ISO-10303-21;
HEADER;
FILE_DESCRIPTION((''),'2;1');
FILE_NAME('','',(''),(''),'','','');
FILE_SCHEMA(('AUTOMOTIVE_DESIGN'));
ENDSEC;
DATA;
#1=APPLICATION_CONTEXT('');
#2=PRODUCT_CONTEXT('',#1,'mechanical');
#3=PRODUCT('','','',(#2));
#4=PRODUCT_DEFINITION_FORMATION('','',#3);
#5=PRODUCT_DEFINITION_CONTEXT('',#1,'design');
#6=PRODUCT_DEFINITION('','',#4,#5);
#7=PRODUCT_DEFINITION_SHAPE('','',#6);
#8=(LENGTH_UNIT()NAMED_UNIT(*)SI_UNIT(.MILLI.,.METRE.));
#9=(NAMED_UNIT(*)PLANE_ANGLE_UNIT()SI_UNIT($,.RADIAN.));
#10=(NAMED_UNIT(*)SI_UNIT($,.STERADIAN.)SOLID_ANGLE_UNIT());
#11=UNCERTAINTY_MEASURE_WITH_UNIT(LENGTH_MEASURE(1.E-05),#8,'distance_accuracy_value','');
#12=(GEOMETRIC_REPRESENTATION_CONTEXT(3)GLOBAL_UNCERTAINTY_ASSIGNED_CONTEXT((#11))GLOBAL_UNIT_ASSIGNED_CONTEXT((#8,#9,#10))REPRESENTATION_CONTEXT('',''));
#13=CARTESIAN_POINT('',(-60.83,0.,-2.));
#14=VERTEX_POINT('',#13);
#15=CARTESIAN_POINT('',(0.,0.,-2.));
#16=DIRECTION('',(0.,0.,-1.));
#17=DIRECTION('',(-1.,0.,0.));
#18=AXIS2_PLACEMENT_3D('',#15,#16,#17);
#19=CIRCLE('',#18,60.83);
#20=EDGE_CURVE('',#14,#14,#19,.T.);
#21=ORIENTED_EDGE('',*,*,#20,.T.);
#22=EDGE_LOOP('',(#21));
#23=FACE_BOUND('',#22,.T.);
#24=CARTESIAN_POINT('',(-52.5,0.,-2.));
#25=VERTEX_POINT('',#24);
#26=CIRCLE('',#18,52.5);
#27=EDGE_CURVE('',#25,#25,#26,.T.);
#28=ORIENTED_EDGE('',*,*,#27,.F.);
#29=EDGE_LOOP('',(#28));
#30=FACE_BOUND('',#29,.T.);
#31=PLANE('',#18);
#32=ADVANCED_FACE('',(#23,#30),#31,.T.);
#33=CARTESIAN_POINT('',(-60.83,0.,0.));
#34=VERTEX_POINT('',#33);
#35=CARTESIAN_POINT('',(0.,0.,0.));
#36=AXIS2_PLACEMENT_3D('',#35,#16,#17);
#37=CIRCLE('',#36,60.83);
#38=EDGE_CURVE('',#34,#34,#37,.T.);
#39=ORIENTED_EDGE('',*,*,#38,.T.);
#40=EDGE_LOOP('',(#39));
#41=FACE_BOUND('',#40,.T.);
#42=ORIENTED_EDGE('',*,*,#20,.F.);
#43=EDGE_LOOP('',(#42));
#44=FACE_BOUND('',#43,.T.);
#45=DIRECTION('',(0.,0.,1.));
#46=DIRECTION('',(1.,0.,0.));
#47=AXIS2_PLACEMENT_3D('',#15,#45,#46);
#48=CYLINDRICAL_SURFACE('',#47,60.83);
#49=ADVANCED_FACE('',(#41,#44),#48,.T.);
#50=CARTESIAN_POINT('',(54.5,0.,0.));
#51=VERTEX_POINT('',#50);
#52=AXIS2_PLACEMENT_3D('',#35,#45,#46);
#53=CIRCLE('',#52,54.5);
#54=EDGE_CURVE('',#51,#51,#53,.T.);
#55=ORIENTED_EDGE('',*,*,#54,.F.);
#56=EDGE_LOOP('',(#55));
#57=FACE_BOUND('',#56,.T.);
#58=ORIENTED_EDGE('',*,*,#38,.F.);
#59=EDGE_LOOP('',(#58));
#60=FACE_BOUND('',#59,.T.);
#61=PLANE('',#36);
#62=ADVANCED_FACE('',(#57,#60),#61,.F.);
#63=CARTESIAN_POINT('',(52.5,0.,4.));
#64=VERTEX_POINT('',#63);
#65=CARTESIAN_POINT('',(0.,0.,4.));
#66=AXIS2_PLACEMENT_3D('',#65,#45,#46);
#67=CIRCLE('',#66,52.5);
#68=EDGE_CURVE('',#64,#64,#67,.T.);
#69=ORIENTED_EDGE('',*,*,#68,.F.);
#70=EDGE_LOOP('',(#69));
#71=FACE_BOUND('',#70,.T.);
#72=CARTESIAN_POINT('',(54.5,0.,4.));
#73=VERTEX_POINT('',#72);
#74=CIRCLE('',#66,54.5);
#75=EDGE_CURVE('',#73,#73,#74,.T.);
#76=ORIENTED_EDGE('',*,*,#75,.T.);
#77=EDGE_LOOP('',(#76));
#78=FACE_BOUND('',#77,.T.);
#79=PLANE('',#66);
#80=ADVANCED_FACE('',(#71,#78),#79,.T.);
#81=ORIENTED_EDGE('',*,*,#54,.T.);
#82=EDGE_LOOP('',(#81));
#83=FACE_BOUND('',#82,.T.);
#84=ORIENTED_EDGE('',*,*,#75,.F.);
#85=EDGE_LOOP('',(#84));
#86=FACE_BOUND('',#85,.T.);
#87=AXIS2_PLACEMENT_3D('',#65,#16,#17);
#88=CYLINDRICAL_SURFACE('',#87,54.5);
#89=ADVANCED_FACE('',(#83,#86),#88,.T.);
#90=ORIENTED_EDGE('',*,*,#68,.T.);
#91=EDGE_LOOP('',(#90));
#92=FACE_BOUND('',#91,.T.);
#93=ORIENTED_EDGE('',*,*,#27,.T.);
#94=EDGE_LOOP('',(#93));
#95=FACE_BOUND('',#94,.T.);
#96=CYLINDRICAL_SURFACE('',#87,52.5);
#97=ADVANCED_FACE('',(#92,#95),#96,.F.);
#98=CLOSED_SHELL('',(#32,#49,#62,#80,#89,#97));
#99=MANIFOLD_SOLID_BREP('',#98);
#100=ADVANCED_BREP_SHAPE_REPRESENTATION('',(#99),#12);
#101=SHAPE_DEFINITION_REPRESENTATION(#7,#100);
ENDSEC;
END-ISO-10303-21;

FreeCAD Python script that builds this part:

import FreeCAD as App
import Part
import Sketcher

V = App.Vector

doc = App.newDocument("Part")
body = doc.addObject("PartDesign::Body", "Body")

# Sketch on XY plane
sketch1 = body.newObject("Sketcher::SketchObject", "Sketch")
sketch1.AttachmentSupport = (doc.getObject("XY_Plane"), [""])
sketch1.MapMode = "FlatFace"
sketch1.addGeometry(Part.Circle(V(0, 0, 0), V(0, 0, 1), 54.5), False)
sketch1.addGeometry(Part.Circle(V(0, 0, 0), V(0, 0, 1), 52.5), False)
sketch1.addConstraint(Sketcher.Constraint("Coincident", 0, 3, -1, 1))
sketch1.addConstraint(Sketcher.Constraint("Coincident", 1, 3, -1, 1))
sketch1.addConstraint(Sketcher.Constraint("Diameter", 0, 109.0))
sketch1.addConstraint(Sketcher.Constraint("Diameter", 1, 105.0))
pad1 = body.newObject("PartDesign::Pad", "Pad")
pad1.Profile = sketch1
pad1.Length = 4

# Sketch on XY plane
sketch2 = body.newObject("Sketcher::SketchObject", "Sketch001")
sketch2.AttachmentSupport = (doc.getObject("XY_Plane"), [""])
sketch2.MapMode = "FlatFace"
sketch2.AttachmentOffset = App.Placement(V(0, 0, -2), App.Rotation())
sketch2.addGeometry(Part.Circle(V(0, 0, 0), V(0, 0, 1), 60.83), False)
sketch2.addGeometry(Part.Circle(V(0, 0, 0), V(0, 0, 1), 52.5), False)
sketch2.addConstraint(Sketcher.Constraint("Coincident", 0, 3, -1, 1))
sketch2.addConstraint(Sketcher.Constraint("Coincident", 1, 3, -1, 1))
sketch2.addConstraint(Sketcher.Constraint("Diameter", 1, 105.0))
sketch2.addConstraint(Sketcher.Constraint("Diameter", 0, 121.66))
pad2 = body.newObject("PartDesign::Pad", "Pad001")
pad2.Profile = sketch2
pad2.Length = 2

doc.recompute()
